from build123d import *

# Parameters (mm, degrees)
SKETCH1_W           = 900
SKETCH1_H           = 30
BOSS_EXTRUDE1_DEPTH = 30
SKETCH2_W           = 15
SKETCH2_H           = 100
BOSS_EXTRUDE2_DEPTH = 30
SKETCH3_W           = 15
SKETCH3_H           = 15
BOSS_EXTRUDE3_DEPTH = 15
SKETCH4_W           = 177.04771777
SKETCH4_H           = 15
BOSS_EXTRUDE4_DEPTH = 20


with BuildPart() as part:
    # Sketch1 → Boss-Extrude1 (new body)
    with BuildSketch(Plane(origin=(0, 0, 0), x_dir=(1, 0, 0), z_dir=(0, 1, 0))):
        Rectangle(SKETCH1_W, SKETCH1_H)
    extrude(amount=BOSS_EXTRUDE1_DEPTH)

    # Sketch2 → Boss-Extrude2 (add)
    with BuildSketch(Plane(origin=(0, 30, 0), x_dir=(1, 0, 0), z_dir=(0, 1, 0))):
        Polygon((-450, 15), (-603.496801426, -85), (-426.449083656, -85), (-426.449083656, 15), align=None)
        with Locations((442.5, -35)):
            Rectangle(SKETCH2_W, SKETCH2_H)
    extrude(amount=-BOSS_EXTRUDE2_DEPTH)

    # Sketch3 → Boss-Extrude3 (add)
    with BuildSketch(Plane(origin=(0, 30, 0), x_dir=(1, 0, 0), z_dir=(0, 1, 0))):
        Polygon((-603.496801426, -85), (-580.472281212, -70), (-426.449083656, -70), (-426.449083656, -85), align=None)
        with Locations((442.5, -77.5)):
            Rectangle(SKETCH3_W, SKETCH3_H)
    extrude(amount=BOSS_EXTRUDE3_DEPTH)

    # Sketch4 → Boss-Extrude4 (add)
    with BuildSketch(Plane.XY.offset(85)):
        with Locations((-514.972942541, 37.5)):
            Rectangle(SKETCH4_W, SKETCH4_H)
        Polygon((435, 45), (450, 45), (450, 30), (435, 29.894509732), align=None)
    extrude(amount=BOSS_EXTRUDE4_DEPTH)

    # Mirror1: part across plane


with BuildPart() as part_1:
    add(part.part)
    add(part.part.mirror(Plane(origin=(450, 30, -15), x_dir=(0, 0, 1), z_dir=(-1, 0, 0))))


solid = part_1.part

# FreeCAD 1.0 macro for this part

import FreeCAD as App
import Part
import Sketcher
Q = App.Units.Quantity

doc = App.newDocument("Part")
body = doc.addObject("PartDesign::Body", "Body")

sketch1 = body.newObject("Sketcher::SketchObject", "Sketch")
sketch1.AttachmentSupport = (doc.getObject("XZ_Plane"), [""])
sketch1.MapMode = "FlatFace"
sketch1.addGeometry([
    Part.LineSegment(App.Vector(-450, -15, 0), App.Vector(-450, 15, 0)),
    Part.LineSegment(App.Vector(-450, 15, 0), App.Vector(450, 15, 0)),
    Part.LineSegment(App.Vector(450, 15, 0), App.Vector(450, -15, 0)),
    Part.LineSegment(App.Vector(450, -15, 0), App.Vector(-450, -15, 0)),
], False)
sketch1.addConstraint([
    Sketcher.Constraint("Coincident", 0, 2, 1, 1),
    Sketcher.Constraint("Coincident", 1, 2, 2, 1),
    Sketcher.Constraint("Coincident", 2, 2, 3, 1),
    Sketcher.Constraint("Coincident", 3, 2, 0, 1),
    Sketcher.Constraint("Vertical", 0),
    Sketcher.Constraint("Horizontal", 1),
    Sketcher.Constraint("Vertical", 2),
    Sketcher.Constraint("Horizontal", 3),
    Sketcher.Constraint("Symmetric", 0, 2, 2, 2, -1, 1),
    Sketcher.Constraint("DistanceX", 1, 1, 1, 2, Q("900 mm")),
    Sketcher.Constraint("DistanceY", 0, 1, 0, 2, Q("30 mm")),
])
pad1 = body.newObject("PartDesign::Pad", "Pad")
pad1.Profile = sketch1
pad1.Length = 30
pad1.Reversed = True

sketch2 = body.newObject("Sketcher::SketchObject", "Sketch001")
sketch2.AttachmentSupport = (doc.getObject("XZ_Plane"), [""])
sketch2.MapMode = "FlatFace"
sketch2.AttachmentOffset = App.Placement(App.Vector(0, 0, -30), App.Rotation())
sketch2.addGeometry([
    Part.LineSegment(App.Vector(-450, -15, 0), App.Vector(-603, 85, 0)),
    Part.LineSegment(App.Vector(-603, 85, 0), App.Vector(-426, 85, 0)),
    Part.LineSegment(App.Vector(-426, 85, 0), App.Vector(-426, -15, 0)),
    Part.LineSegment(App.Vector(-426, -15, 0), App.Vector(-450, -15, 0)),
    Part.LineSegment(App.Vector(435, -15, 0), App.Vector(435, 85, 0)),
    Part.LineSegment(App.Vector(435, 85, 0), App.Vector(450, 85, 0)),
    Part.LineSegment(App.Vector(450, 85, 0), App.Vector(450, -15, 0)),
    Part.LineSegment(App.Vector(450, -15, 0), App.Vector(435, -15, 0)),
], False)
sketch2.addConstraint([
    Sketcher.Constraint("Coincident", 0, 2, 1, 1),
    Sketcher.Constraint("Coincident", 1, 2, 2, 1),
    Sketcher.Constraint("Coincident", 2, 2, 3, 1),
    Sketcher.Constraint("Coincident", 3, 2, 0, 1),
    Sketcher.Constraint("Coincident", 4, 2, 5, 1),
    Sketcher.Constraint("Coincident", 5, 2, 6, 1),
    Sketcher.Constraint("Coincident", 6, 2, 7, 1),
    Sketcher.Constraint("Coincident", 7, 2, 4, 1),
    Sketcher.Constraint("Horizontal", 1),
    Sketcher.Constraint("Vertical", 2),
    Sketcher.Constraint("Horizontal", 3),
    Sketcher.Constraint("Vertical", 4),
    Sketcher.Constraint("Horizontal", 5),
    Sketcher.Constraint("Vertical", 6),
    Sketcher.Constraint("Horizontal", 7),
    Sketcher.Constraint("Symmetric", 3, 2, 6, 2, -2),
    Sketcher.Constraint("Horizontal", 1, 2, 4, 2),
    Sketcher.Constraint("DistanceX", 5, 1, 5, 2, Q("15 mm")),
    Sketcher.Constraint("DistanceY", 2, 2, 2, 1, Q("100 mm")),
    Sketcher.Constraint("DistanceY", -1, 1, 0, 2, Q("85 mm")),
    Sketcher.Constraint("DistanceX", 3, 2, -1, 1, Q("450 mm")),
    Sketcher.Constraint("DistanceX", 0, 2, -1, 1, Q("603.496801 mm")),
    Sketcher.Constraint("DistanceX", 1, 1, 1, 2, Q("177.047718 mm")),
])
pad2 = body.newObject("PartDesign::Pad", "Pad001")
pad2.Profile = sketch2
pad2.Length = 30

sketch3 = body.newObject("Sketcher::SketchObject", "Sketch002")
sketch3.AttachmentSupport = (doc.getObject("XZ_Plane"), [""])
sketch3.MapMode = "FlatFace"
sketch3.AttachmentOffset = App.Placement(App.Vector(0, 0, -30), App.Rotation())
sketch3.addGeometry([
    Part.LineSegment(App.Vector(-580, 70, 0), App.Vector(-603, 85, 0)),
    Part.LineSegment(App.Vector(-603, 85, 0), App.Vector(-426, 85, 0)),
    Part.LineSegment(App.Vector(-426, 85, 0), App.Vector(-426, 70, 0)),
    Part.LineSegment(App.Vector(-426, 70, 0), App.Vector(-580, 70, 0)),
    Part.LineSegment(App.Vector(435, 70, 0), App.Vector(435, 85, 0)),
    Part.LineSegment(App.Vector(435, 85, 0), App.Vector(450, 85, 0)),
    Part.LineSegment(App.Vector(450, 85, 0), App.Vector(450, 70, 0)),
    Part.LineSegment(App.Vector(450, 70, 0), App.Vector(435, 70, 0)),
], False)
sketch3.addConstraint([
    Sketcher.Constraint("Coincident", 0, 2, 1, 1),
    Sketcher.Constraint("Coincident", 1, 2, 2, 1),
    Sketcher.Constraint("Coincident", 2, 2, 3, 1),
    Sketcher.Constraint("Coincident", 3, 2, 0, 1),
    Sketcher.Constraint("Coincident", 4, 2, 5, 1),
    Sketcher.Constraint("Coincident", 5, 2, 6, 1),
    Sketcher.Constraint("Coincident", 6, 2, 7, 1),
    Sketcher.Constraint("Coincident", 7, 2, 4, 1),
    Sketcher.Constraint("Horizontal", 1),
    Sketcher.Constraint("Vertical", 2),
    Sketcher.Constraint("Horizontal", 3),
    Sketcher.Constraint("Vertical", 4),
    Sketcher.Constraint("Horizontal", 5),
    Sketcher.Constraint("Vertical", 6),
    Sketcher.Constraint("Horizontal", 7),
    Sketcher.Constraint("Horizontal", 1, 2, 4, 2),
    Sketcher.Constraint("Horizontal", 3, 2, 6, 2),
    Sketcher.Constraint("Equal", 7, 2),
    Sketcher.Constraint("DistanceX", 5, 1, 5, 2, Q("15 mm")),
    Sketcher.Constraint("DistanceY", -1, 1, 0, 2, Q("85 mm")),
    Sketcher.Constraint("DistanceX", -1, 1, 4, 2, Q("435 mm")),
    Sketcher.Constraint("DistanceX", 0, 2, -1, 1, Q("603.496801 mm")),
    Sketcher.Constraint("DistanceX", 1, 1, 1, 2, Q("177.047718 mm")),
    Sketcher.Constraint("DistanceX", 3, 2, 3, 1, Q("154.023198 mm")),
])
pad3 = body.newObject("PartDesign::Pad", "Pad002")
pad3.Profile = sketch3
pad3.Length = 15
pad3.Reversed = True

sketch4 = body.newObject("Sketcher::SketchObject", "Sketch003")
sketch4.AttachmentSupport = (doc.getObject("XY_Plane"), [""])
sketch4.MapMode = "FlatFace"
sketch4.AttachmentOffset = App.Placement(App.Vector(0, 0, 85), App.Rotation())
sketch4.addGeometry([
    Part.LineSegment(App.Vector(-603, 45, 0), App.Vector(-603, 30, 0)),
    Part.LineSegment(App.Vector(-603, 30, 0), App.Vector(-426, 30, 0)),
    Part.LineSegment(App.Vector(-426, 30, 0), App.Vector(-426, 45, 0)),
    Part.LineSegment(App.Vector(-426, 45, 0), App.Vector(-603, 45, 0)),
    Part.LineSegment(App.Vector(450, 45, 0), App.Vector(435, 45, 0)),
    Part.LineSegment(App.Vector(435, 45, 0), App.Vector(435, 30, 0)),
    Part.LineSegment(App.Vector(435, 30, 0), App.Vector(450, 30, 0)),
    Part.LineSegment(App.Vector(450, 30, 0), App.Vector(450, 45, 0)),
], False)
sketch4.addConstraint([
    Sketcher.Constraint("Coincident", 0, 2, 1, 1),
    Sketcher.Constraint("Coincident", 1, 2, 2, 1),
    Sketcher.Constraint("Coincident", 2, 2, 3, 1),
    Sketcher.Constraint("Coincident", 3, 2, 0, 1),
    Sketcher.Constraint("Coincident", 4, 2, 5, 1),
    Sketcher.Constraint("Coincident", 5, 2, 6, 1),
    Sketcher.Constraint("Coincident", 6, 2, 7, 1),
    Sketcher.Constraint("Coincident", 7, 2, 4, 1),
    Sketcher.Constraint("Vertical", 0),
    Sketcher.Constraint("Horizontal", 1),
    Sketcher.Constraint("Vertical", 2),
    Sketcher.Constraint("Horizontal", 3),
    Sketcher.Constraint("Horizontal", 4),
    Sketcher.Constraint("Vertical", 5),
    Sketcher.Constraint("Vertical", 7),
    Sketcher.Constraint("Horizontal", 3, 2, 4, 2),
    Sketcher.Constraint("Horizontal", 1, 2, 6, 2),
    Sketcher.Constraint("Equal", 4, 0),
    Sketcher.Constraint("DistanceX", 4, 2, 4, 1, Q("15 mm")),
    Sketcher.Constraint("DistanceY", -1, 1, 0, 2, Q("30 mm")),
    Sketcher.Constraint("DistanceX", -1, 1, 4, 2, Q("435 mm")),
    Sketcher.Constraint("DistanceY", 5, 2, 5, 1, Q("15.10549 mm")),
    Sketcher.Constraint("DistanceX", 0, 2, -1, 1, Q("603.496801 mm")),
    Sketcher.Constraint("DistanceX", 1, 1, 1, 2, Q("177.047718 mm")),
])
pad4 = body.newObject("PartDesign::Pad", "Pad003")
pad4.Profile = sketch4
pad4.Length = 20
body2 = doc.addObject("PartDesign::Body", "Body001")
doc.recompute()

body2.BaseFeature = body
doc.recompute()

mirroring = doc.addObject("Part::Mirroring", "Mirroring")
mirroring.Source = body
mirroring.Base = App.Vector(450, 30, -15)
mirroring.Normal = App.Vector(-1, 0, 0)
body3 = doc.addObject("PartDesign::Body", "Body002")
body3.BaseFeature = mirroring
boolean = body2.newObject("PartDesign::Boolean", "Boolean")
boolean.Type = "Fuse"
boolean.addObjects([body3])
doc.recompute()
mirroring.Visibility = False

doc.recompute()
